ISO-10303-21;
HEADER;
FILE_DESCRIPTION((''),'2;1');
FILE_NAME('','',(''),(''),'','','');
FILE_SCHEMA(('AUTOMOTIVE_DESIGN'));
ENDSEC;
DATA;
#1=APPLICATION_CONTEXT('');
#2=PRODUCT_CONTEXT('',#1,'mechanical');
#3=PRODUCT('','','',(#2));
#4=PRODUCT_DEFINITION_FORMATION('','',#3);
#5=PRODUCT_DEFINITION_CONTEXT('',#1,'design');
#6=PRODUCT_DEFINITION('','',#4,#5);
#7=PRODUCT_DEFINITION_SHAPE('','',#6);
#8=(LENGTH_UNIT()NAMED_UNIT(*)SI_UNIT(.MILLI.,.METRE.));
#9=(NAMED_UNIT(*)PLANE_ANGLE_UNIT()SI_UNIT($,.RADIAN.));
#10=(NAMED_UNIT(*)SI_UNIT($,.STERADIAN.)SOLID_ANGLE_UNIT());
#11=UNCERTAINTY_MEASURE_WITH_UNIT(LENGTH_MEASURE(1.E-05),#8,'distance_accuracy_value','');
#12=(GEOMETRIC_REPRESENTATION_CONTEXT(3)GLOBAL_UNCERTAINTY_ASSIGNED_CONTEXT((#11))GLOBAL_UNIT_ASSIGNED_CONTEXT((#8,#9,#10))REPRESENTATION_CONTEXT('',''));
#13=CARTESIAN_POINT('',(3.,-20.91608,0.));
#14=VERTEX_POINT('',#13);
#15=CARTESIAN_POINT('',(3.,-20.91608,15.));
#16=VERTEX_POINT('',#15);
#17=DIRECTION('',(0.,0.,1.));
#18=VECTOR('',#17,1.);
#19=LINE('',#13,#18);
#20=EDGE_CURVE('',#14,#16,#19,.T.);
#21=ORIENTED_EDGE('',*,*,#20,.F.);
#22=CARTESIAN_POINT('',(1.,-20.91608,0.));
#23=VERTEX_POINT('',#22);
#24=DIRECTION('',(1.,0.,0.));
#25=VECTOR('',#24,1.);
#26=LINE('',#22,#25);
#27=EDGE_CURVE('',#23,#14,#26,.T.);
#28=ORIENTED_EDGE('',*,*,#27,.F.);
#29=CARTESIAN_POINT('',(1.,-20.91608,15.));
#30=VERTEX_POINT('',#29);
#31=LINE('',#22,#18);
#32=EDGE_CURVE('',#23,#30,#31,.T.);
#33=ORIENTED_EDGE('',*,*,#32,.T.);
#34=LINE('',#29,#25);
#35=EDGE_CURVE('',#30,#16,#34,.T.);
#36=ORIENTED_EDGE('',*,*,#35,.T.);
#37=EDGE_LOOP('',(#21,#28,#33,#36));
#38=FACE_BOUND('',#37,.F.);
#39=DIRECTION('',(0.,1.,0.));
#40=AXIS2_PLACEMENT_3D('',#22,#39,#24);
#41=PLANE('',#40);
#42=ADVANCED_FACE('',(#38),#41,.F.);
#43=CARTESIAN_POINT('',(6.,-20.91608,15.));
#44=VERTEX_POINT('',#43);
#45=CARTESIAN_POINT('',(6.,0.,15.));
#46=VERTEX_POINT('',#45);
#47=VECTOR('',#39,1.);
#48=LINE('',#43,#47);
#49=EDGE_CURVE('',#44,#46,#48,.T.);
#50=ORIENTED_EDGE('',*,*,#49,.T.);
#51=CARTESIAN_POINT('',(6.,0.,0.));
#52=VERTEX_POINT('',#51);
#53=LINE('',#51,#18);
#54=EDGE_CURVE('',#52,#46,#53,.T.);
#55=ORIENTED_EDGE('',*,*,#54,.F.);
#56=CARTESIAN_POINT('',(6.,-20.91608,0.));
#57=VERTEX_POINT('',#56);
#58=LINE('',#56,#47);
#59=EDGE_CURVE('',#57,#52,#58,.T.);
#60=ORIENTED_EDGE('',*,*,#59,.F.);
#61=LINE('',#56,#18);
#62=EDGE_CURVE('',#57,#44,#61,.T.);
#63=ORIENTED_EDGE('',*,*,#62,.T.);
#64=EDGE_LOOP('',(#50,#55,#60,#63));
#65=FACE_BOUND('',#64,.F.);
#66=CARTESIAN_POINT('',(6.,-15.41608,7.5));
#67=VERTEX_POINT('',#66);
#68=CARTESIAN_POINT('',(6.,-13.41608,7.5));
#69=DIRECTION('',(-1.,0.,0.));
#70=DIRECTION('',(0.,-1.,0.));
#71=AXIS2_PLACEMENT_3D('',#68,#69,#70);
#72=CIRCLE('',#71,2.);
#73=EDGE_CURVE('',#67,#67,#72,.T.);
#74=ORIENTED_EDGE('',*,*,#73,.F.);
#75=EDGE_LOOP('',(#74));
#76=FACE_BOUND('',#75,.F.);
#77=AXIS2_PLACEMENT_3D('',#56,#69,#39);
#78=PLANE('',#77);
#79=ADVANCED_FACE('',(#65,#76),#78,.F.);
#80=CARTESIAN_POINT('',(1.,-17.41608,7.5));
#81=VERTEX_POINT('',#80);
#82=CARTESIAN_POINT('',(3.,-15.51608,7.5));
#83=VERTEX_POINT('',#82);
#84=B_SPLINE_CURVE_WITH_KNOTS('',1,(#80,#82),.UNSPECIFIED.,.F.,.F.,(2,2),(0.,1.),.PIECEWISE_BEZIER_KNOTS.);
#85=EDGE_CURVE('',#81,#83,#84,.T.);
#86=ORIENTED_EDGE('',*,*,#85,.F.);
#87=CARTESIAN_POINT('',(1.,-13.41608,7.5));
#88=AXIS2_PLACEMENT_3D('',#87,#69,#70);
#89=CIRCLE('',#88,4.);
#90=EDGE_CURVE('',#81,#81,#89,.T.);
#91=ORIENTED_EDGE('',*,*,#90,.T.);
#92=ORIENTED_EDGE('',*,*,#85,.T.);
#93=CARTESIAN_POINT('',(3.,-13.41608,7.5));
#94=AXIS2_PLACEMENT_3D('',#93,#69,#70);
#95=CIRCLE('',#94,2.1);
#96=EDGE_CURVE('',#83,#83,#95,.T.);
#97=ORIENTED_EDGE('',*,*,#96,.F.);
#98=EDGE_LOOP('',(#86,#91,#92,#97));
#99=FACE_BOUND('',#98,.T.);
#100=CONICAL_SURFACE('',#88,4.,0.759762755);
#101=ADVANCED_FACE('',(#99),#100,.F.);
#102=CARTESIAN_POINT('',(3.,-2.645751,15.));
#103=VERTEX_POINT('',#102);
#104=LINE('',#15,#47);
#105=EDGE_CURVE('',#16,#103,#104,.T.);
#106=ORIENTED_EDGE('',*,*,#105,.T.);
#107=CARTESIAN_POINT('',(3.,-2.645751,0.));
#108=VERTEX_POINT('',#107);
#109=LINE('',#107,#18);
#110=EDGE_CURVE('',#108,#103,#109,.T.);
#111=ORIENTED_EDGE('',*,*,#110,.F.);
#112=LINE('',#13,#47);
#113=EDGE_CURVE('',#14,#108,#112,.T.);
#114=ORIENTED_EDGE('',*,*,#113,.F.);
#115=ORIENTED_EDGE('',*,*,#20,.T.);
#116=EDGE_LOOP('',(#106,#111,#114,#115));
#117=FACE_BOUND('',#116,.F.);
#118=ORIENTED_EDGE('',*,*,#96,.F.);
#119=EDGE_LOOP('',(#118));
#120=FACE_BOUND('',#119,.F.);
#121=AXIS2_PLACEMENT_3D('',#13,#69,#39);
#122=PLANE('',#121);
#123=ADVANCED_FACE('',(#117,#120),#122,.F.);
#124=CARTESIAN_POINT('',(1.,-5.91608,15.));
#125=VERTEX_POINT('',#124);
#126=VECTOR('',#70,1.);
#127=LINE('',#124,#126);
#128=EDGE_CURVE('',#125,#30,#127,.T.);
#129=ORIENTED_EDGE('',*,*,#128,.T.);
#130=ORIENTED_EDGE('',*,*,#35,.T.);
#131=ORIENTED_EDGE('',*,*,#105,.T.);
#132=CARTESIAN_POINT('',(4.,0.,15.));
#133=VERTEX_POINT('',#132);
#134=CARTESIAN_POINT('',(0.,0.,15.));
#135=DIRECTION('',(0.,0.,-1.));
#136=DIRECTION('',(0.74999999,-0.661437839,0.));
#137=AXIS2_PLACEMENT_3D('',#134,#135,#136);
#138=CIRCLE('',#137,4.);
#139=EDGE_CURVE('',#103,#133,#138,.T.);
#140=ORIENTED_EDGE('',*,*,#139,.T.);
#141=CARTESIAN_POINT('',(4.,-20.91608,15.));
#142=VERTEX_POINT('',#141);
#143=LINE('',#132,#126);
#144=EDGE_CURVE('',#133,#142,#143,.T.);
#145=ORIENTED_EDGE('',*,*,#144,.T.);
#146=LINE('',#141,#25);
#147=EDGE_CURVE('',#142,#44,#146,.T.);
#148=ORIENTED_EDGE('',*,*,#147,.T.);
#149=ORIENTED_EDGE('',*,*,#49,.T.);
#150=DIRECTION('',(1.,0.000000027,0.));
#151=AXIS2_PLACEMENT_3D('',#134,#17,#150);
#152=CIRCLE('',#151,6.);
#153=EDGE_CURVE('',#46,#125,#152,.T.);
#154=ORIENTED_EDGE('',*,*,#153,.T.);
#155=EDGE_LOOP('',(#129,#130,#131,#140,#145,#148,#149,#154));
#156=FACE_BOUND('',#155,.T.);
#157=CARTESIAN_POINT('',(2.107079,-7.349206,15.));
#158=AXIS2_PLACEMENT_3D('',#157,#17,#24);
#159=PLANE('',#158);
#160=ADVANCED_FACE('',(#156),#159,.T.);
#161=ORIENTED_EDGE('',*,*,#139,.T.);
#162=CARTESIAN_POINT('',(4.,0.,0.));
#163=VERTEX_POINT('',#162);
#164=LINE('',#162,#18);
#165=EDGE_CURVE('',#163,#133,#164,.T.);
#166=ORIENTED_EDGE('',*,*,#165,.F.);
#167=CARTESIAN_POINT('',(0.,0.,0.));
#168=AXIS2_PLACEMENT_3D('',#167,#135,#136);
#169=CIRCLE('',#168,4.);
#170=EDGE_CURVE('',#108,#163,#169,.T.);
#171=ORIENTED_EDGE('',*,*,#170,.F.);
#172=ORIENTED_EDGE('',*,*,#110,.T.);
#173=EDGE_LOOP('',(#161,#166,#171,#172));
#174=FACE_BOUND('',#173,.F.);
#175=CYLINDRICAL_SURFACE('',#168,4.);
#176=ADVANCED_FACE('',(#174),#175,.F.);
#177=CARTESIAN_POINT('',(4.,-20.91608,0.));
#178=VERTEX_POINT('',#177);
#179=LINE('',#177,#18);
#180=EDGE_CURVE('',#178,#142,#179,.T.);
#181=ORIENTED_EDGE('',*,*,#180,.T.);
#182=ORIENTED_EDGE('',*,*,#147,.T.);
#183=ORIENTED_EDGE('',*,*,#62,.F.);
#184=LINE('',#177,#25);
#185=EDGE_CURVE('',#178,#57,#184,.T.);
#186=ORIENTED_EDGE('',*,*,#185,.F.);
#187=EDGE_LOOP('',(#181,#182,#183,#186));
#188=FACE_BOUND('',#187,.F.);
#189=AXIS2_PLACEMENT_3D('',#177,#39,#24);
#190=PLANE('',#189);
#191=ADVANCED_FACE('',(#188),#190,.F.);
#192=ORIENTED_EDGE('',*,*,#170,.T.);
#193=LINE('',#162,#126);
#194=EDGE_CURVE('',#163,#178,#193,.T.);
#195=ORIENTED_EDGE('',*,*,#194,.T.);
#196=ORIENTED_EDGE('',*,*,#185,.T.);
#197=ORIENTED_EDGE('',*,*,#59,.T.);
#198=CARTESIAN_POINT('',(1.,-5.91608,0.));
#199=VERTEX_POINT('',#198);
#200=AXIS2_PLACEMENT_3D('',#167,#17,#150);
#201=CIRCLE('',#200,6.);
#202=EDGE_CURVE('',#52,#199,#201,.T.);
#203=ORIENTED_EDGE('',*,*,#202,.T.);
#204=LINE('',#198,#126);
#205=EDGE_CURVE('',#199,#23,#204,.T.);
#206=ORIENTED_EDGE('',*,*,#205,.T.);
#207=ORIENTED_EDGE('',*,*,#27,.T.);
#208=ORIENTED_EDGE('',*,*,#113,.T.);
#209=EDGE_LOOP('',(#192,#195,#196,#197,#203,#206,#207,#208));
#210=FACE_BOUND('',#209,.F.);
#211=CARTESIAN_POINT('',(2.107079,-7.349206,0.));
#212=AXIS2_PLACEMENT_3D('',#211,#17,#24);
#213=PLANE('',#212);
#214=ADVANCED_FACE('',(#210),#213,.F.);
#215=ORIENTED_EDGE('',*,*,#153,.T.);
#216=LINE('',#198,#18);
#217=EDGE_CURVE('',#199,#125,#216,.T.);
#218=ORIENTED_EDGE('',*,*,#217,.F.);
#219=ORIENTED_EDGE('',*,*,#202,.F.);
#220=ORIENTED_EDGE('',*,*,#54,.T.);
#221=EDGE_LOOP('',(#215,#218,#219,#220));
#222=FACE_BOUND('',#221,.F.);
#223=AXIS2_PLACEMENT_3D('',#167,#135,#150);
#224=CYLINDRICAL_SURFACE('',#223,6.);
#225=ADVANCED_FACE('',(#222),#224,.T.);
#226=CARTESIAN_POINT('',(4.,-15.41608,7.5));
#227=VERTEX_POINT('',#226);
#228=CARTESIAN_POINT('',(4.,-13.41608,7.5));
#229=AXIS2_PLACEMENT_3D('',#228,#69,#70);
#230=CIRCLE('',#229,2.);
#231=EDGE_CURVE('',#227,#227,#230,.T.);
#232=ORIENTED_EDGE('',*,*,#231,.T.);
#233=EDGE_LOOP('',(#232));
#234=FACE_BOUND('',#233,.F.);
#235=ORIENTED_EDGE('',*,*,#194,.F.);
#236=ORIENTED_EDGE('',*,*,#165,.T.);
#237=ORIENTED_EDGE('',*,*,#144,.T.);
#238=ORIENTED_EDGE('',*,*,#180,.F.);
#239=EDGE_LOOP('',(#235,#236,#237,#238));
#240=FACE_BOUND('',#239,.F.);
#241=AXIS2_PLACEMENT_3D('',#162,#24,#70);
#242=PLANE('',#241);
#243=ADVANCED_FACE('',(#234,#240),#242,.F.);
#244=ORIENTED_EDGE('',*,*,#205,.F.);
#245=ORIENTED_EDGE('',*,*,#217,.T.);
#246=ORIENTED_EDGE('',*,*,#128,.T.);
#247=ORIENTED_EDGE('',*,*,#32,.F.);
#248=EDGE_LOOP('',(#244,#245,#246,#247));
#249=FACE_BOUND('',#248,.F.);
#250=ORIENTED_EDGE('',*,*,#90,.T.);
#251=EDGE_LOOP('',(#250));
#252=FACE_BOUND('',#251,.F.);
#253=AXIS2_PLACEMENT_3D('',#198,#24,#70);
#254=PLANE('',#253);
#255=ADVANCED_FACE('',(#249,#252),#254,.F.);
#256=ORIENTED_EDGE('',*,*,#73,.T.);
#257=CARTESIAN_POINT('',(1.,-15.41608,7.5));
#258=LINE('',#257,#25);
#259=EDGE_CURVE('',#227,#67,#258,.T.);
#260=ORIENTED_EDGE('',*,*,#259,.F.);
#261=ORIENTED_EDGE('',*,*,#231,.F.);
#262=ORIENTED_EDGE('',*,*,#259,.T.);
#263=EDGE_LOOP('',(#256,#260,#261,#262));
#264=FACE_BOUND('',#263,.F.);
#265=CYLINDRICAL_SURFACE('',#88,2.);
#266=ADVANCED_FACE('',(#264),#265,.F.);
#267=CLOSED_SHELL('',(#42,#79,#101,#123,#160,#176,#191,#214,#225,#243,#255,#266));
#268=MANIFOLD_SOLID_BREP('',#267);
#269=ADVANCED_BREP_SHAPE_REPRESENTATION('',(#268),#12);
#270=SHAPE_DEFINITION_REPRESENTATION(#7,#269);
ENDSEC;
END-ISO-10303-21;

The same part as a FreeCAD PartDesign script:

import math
import FreeCAD as App
import Part
import Sketcher

V = App.Vector
Q = App.Units.Quantity

doc = App.newDocument("Part")
body = doc.addObject("PartDesign::Body", "Body")

sketch1 = doc.addObject("Sketcher::SketchObject", "Sketch")
body.addObject(sketch1)
sketch1.AttachmentSupport = (doc.XY_Plane, [""])
sketch1.MapMode = "FlatFace"
sketch1.addGeometry(Part.ArcOfCircle(Part.Circle(V(0, 0, 0), V(0, 0, 1), 4), math.radians(-0.000004), math.radians(318.590377)), False)
sketch1.addGeometry(Part.LineSegment(V(4, 0, 0), V(4, -20.91608, 0)), False)
sketch1.addGeometry(Part.LineSegment(V(4, -20.91608, 0), V(6, -20.91608, 0)), False)
sketch1.addGeometry(Part.LineSegment(V(6, -20.91608, 0), V(6, 0, 0)), False)
sketch1.addGeometry(Part.ArcOfCircle(Part.Circle(V(0, 0, 0), V(0, 0, 1), 6), math.radians(0.000002), math.radians(279.594069)), False)
sketch1.addGeometry(Part.LineSegment(V(1, -5.91608, 0), V(1, -20.91608, 0)), False)
sketch1.addGeometry(Part.LineSegment(V(1, -20.91608, 0), V(3, -20.91608, 0)), False)
sketch1.addGeometry(Part.LineSegment(V(3, -20.91608, 0), V(3, -2.645751, 0)), False)
sketch1.addConstraint(Sketcher.Constraint("Tangent", 0, 1, 1, 1))
sketch1.addConstraint(Sketcher.Constraint("Coincident", 1, 2, 2, 1))
sketch1.addConstraint(Sketcher.Constraint("Coincident", 2, 2, 3, 1))
sketch1.addConstraint(Sketcher.Constraint("Tangent", 3, 2, 4, 1))
sketch1.addConstraint(Sketcher.Constraint("Coincident", 4, 2, 5, 1))
sketch1.addConstraint(Sketcher.Constraint("Coincident", 5, 2, 6, 1))
sketch1.addConstraint(Sketcher.Constraint("Coincident", 6, 2, 7, 1))
sketch1.addConstraint(Sketcher.Constraint("Coincident", 7, 2, 0, 2))
sketch1.addConstraint(Sketcher.Constraint("Vertical", 1))
sketch1.addConstraint(Sketcher.Constraint("Horizontal", 2))
sketch1.addConstraint(Sketcher.Constraint("Vertical", 3))
sketch1.addConstraint(Sketcher.Constraint("Vertical", 5))
sketch1.addConstraint(Sketcher.Constraint("Horizontal", 6))
sketch1.addConstraint(Sketcher.Constraint("Vertical", 7))
sketch1.addConstraint(Sketcher.Constraint("Coincident", 0, 3, -1, 1))
sketch1.addConstraint(Sketcher.Constraint("Coincident", 4, 3, -1, 1))
sketch1.addConstraint(Sketcher.Constraint("Horizontal", 2, 2, 5, 2))
sketch1.addConstraint(Sketcher.Constraint("Equal", 2, 6))
sketch1.addConstraint(Sketcher.Constraint("Radius", 0, Q("4 mm")))
sketch1.addConstraint(Sketcher.Constraint("Radius", 4, Q("6 mm")))
sketch1.addConstraint(Sketcher.Constraint("DistanceY", 5, 2, 5, 1, Q("15 mm")))
sketch1.addConstraint(Sketcher.Constraint("DistanceX", -1, 1, 4, 2, Q("1 mm")))
pad1 = doc.addObject("PartDesign::Pad", "Pad")
body.addObject(pad1)
pad1.Profile = sketch1
pad1.Length = 15

sketch2 = doc.addObject("Sketcher::SketchObject", "Sketch001")
body.addObject(sketch2)
sketch2.AttachmentSupport = (doc.YZ_Plane, [""])
sketch2.MapMode = "FlatFace"
sketch2.AttachmentOffset = App.Placement(V(0, 0, 1), App.Rotation())
sketch2.addGeometry(Part.Circle(V(-13.41608, 7.5, 0), V(0, 0, 1), 2), False)
sketch2.addConstraint(Sketcher.Constraint("Diameter", 0, Q("4 mm")))
sketch2.addConstraint(Sketcher.Constraint("DistanceY", -1, 1, 0, 3, Q("7.5 mm")))
sketch2.addConstraint(Sketcher.Constraint("DistanceX", 0, 3, -1, 1, Q("13.41608 mm")))
pocket1 = doc.addObject("PartDesign::Pocket", "Pocket")
body.addObject(pocket1)
pocket1.Profile = sketch2
pocket1.Type = "ThroughAll"
pocket1.Reversed = True

sketch3 = doc.addObject("Sketcher::SketchObject", "Sketch002")
body.addObject(sketch3)
sketch3.AttachmentSupport = (doc.YZ_Plane, [""])
sketch3.MapMode = "FlatFace"
sketch3.AttachmentOffset = App.Placement(V(0, 0, 1), App.Rotation())
sketch3.addGeometry(Part.Circle(V(-13.41608, 7.5, 0), V(0, 0, 1), 4), False)
sketch3.addConstraint(Sketcher.Constraint("Diameter", 0, Q("8 mm")))
sketch3.addConstraint(Sketcher.Constraint("DistanceY", -1, 1, 0, 3, Q("7.5 mm")))
sketch3.addConstraint(Sketcher.Constraint("DistanceX", 0, 3, -1, 1, Q("13.41608 mm")))

sketch4 = doc.addObject("Sketcher::SketchObject", "Sketch003")
body.addObject(sketch4)
sketch4.AttachmentSupport = (doc.YZ_Plane, [""])
sketch4.MapMode = "FlatFace"
sketch4.AttachmentOffset = App.Placement(V(0, 0, 3), App.Rotation())
sketch4.addGeometry(Part.Circle(V(-13.41608, 7.5, 0), V(0, 0, 1), 2.1), False)
sketch4.addConstraint(Sketcher.Constraint("Diameter", 0, Q("4.2 mm")))
sketch4.addConstraint(Sketcher.Constraint("DistanceY", -1, 1, 0, 3, Q("7.5 mm")))
sketch4.addConstraint(Sketcher.Constraint("DistanceX", 0, 3, -1, 1, Q("13.41608 mm")))

subtractiveloft = doc.addObject("PartDesign::SubtractiveLoft", "SubtractiveLoft")
body.addObject(subtractiveloft)
subtractiveloft.Profile = sketch3
subtractiveloft.Sections = [sketch4]

doc.recompute()
